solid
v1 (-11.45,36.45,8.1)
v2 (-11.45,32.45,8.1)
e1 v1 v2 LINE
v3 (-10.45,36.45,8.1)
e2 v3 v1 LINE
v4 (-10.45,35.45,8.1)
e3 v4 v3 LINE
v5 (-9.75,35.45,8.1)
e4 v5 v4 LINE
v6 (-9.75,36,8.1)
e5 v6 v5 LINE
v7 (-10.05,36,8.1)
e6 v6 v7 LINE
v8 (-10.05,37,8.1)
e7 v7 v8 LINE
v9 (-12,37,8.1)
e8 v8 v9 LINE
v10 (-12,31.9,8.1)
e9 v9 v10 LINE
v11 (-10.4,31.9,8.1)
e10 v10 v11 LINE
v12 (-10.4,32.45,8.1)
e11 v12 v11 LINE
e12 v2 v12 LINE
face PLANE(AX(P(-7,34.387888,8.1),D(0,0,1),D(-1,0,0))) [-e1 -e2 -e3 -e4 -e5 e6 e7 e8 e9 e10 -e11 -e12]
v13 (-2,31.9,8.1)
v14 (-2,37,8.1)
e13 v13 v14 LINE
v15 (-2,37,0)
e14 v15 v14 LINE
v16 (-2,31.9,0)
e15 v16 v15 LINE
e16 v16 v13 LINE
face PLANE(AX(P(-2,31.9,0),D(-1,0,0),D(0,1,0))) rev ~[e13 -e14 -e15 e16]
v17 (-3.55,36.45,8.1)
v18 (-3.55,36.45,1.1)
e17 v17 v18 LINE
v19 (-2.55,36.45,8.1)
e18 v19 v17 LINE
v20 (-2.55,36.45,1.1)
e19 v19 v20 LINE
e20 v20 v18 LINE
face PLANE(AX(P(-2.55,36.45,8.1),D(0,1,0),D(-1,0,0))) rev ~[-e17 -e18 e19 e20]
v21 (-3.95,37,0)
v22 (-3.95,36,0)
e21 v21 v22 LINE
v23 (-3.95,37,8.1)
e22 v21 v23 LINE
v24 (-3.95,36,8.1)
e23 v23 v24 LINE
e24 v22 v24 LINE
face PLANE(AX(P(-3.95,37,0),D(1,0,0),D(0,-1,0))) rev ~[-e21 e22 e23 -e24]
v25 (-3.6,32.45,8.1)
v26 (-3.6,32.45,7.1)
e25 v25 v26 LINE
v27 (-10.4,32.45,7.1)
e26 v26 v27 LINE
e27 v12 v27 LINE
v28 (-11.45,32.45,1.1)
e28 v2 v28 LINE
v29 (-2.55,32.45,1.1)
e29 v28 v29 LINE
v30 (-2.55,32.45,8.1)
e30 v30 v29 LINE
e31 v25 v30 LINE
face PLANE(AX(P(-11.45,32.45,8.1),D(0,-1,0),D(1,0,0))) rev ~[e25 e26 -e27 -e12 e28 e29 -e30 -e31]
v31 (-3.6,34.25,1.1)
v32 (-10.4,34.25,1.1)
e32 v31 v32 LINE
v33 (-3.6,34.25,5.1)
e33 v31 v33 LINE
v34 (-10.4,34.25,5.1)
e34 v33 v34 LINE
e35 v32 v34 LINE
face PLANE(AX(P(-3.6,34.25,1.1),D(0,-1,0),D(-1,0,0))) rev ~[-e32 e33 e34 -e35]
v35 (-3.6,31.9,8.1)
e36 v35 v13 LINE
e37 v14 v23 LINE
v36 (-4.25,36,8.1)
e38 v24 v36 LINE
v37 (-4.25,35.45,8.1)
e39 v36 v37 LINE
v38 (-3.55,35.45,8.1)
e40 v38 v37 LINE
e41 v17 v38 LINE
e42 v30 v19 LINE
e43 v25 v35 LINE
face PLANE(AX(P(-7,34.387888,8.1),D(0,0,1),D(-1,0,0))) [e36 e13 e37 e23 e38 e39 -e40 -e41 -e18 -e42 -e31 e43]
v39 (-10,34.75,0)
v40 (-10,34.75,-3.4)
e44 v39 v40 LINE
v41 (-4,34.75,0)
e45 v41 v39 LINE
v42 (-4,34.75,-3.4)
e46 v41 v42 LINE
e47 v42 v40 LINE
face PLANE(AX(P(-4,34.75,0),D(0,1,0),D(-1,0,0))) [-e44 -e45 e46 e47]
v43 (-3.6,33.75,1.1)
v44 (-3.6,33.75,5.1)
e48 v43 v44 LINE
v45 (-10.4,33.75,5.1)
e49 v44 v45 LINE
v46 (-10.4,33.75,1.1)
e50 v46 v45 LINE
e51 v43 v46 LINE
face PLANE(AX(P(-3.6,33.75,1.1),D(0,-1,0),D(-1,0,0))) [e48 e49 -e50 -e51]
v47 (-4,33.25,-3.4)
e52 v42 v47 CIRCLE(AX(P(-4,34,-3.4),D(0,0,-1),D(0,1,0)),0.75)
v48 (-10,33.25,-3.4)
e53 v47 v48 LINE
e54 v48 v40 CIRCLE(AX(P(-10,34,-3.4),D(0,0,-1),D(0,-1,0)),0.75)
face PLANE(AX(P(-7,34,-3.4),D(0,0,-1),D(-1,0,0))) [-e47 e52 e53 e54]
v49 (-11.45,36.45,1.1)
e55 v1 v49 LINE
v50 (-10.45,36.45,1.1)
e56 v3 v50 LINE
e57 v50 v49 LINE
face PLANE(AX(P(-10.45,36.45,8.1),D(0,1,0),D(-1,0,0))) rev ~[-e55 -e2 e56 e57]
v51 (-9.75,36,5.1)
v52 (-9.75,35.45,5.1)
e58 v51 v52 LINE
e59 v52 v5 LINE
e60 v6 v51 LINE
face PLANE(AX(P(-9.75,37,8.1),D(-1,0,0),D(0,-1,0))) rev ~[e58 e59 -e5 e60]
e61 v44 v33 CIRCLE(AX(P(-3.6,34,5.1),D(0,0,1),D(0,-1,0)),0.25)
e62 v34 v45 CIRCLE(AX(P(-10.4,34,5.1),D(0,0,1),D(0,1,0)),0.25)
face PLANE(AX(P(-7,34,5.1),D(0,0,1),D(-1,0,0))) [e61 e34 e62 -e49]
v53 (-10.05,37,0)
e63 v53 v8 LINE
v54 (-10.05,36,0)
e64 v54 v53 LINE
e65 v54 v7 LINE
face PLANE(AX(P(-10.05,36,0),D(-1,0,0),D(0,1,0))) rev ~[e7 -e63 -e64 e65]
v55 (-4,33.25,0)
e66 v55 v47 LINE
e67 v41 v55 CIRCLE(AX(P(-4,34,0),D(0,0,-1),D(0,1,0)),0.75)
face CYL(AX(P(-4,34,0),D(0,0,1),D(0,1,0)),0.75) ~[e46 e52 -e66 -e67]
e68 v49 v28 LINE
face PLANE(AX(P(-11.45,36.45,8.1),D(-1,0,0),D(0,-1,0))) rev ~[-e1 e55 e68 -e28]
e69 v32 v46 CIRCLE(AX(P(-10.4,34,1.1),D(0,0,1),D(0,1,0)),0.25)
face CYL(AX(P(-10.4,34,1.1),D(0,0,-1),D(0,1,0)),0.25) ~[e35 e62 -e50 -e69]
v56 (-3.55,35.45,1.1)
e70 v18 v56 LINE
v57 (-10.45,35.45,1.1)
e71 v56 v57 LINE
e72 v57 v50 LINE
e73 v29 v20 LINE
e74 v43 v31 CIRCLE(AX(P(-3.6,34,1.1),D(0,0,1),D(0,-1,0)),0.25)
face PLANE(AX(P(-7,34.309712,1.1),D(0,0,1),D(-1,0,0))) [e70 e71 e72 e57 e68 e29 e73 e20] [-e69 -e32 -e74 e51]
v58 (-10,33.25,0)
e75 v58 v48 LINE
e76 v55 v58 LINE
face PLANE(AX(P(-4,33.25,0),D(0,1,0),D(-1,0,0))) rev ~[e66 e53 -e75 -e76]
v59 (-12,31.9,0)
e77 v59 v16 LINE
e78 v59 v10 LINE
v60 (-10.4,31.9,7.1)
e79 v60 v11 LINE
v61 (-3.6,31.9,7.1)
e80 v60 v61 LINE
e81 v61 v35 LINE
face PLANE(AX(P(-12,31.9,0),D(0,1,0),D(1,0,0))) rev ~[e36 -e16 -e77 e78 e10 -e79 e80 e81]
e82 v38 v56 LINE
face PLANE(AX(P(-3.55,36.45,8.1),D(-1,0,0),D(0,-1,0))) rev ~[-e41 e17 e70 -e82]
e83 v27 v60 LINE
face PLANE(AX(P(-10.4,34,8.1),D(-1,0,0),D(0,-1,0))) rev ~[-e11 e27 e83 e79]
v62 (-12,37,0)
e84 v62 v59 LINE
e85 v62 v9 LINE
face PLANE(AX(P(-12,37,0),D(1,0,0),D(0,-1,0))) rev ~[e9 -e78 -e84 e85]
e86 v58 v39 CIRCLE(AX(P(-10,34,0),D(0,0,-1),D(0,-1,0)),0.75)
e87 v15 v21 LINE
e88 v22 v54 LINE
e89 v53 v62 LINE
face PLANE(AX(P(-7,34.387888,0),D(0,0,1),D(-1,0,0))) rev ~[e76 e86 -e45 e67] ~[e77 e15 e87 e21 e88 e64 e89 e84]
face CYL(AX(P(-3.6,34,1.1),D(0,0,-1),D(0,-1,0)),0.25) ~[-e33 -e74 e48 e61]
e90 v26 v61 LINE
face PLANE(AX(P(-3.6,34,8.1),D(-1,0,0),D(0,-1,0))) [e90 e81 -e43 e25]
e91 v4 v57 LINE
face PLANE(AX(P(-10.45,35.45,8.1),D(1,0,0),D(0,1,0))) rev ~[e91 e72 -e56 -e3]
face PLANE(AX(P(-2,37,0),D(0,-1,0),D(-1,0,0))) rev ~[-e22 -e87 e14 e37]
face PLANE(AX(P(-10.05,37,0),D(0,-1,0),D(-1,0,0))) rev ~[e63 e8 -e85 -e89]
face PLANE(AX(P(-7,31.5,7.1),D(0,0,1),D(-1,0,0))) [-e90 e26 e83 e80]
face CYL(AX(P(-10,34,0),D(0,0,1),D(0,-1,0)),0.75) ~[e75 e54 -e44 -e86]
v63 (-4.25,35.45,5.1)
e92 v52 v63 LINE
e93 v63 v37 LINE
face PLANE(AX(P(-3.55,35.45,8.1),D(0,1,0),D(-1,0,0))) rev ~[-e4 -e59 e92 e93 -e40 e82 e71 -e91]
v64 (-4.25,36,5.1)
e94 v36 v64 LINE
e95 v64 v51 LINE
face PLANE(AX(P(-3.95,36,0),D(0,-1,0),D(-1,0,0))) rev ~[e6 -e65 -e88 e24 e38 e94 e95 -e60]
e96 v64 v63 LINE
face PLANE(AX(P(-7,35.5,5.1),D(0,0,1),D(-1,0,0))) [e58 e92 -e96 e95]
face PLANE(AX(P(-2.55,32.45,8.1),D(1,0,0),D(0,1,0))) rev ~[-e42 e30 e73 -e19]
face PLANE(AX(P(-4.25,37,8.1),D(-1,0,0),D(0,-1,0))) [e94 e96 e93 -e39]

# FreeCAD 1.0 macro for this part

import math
import FreeCAD as App
import Part
import Sketcher
Q = App.Units.Quantity


def add_polygon(sketch, points):
    """Adds a closed chain of lines whose ends are joined by coincident constraints."""
    first, n = sketch.GeometryCount, len(points)
    for a, b in zip(points, points[1:] + points[:1]):
        sketch.addGeometry(Part.LineSegment(App.Vector(*a, 0), App.Vector(*b, 0)), False)
    for i in range(n):
        sketch.addConstraint(Sketcher.Constraint("Coincident", first + i, 2, first + (i + 1) % n, 1))

doc = App.newDocument("Part")
body = doc.addObject("PartDesign::Body", "Body")

# Sketch on XY plane
sketch1 = body.newObject("Sketcher::SketchObject", "Sketch")
sketch1.AttachmentSupport = (doc.getObject("XY_Plane"), [""])
sketch1.MapMode = "FlatFace"
add_polygon(sketch1, [(-5, 0), (-3, 0), (-3, 1), (3, 1), (3, 0), (5, 0), (5, 5.1), (-5, 5.1)])  # lines 0-7
sketch1.addConstraint(Sketcher.Constraint("Horizontal", 0))
sketch1.addConstraint(Sketcher.Constraint("Vertical", 1))
sketch1.addConstraint(Sketcher.Constraint("Horizontal", 2))
sketch1.addConstraint(Sketcher.Constraint("Vertical", 3))
sketch1.addConstraint(Sketcher.Constraint("Horizontal", 4))
sketch1.addConstraint(Sketcher.Constraint("Vertical", 5))
sketch1.addConstraint(Sketcher.Constraint("Horizontal", 6))
sketch1.addConstraint(Sketcher.Constraint("Vertical", 7))
sketch1.addConstraint(Sketcher.Constraint("Symmetric", 0, 2, 3, 2, -1, 1))
sketch1.addConstraint(Sketcher.Constraint("Symmetric", 4, 2, 7, 2, -2))
sketch1.addConstraint(Sketcher.Constraint("DistanceX", 6, 2, 6, 1, Q("10 mm")))
sketch1.addConstraint(Sketcher.Constraint("DistanceY", 1, 1, 1, 2, Q("1 mm")))
sketch1.addConstraint(Sketcher.Constraint("DistanceX", 2, 1, 2, 2, Q("6.1 mm")))
sketch1.addConstraint(Sketcher.Constraint("DistanceY", 5, 1, 5, 2, Q("5.1 mm")))
pad1 = body.newObject("PartDesign::Pad", "Pad")
pad1.Profile = sketch1
pad1.Length = 8.1

# Sketch on XY plane
sketch2 = body.newObject("Sketcher::SketchObject", "Sketch001")
sketch2.AttachmentSupport = (doc.getObject("XY_Plane"), [""])
sketch2.MapMode = "FlatFace"
sketch2.AttachmentOffset = App.Placement(App.Vector(0, 0, 8.1), App.Rotation())
add_polygon(sketch2, [(-4.5, 0.6), (-3.5, 0.6), (-3.5, 1.6), (3.5, 1.6), (3.5, 0.6), (4.5, 0.6), (4.5, 4.5), (-4.5, 4.5)])  # lines 0-7
sketch2.addConstraint(Sketcher.Constraint("Horizontal", 0))
sketch2.addConstraint(Sketcher.Constraint("Vertical", 1))
sketch2.addConstraint(Sketcher.Constraint("Horizontal", 2))
sketch2.addConstraint(Sketcher.Constraint("Vertical", 3))
sketch2.addConstraint(Sketcher.Constraint("Horizontal", 4))
sketch2.addConstraint(Sketcher.Constraint("Vertical", 5))
sketch2.addConstraint(Sketcher.Constraint("Horizontal", 6))
sketch2.addConstraint(Sketcher.Constraint("Vertical", 7))
sketch2.addConstraint(Sketcher.Constraint("Symmetric", 0, 2, 3, 2, -2))
sketch2.addConstraint(Sketcher.Constraint("Equal", 0, 4))
sketch2.addConstraint(Sketcher.Constraint("Equal", 4, 1))
sketch2.addConstraint(Sketcher.Constraint("DistanceX", 0, 1, 0, 2, Q("1 mm")))
sketch2.addConstraint(Sketcher.Constraint("DistanceY", 5, 1, 5, 2, Q("4 mm")))
sketch2.addConstraint(Sketcher.Constraint("DistanceX", 2, 1, 2, 2, Q("6.9 mm")))
sketch2.addConstraint(Sketcher.Constraint("DistanceY", -1, 1, 0, 2, Q("0.55 mm")))
pocket1 = body.newObject("PartDesign::Pocket", "Pocket")
pocket1.Profile = sketch2
pocket1.Length = 7

# Sketch on XY plane
sketch3 = body.newObject("Sketcher::SketchObject", "Sketch002")
sketch3.AttachmentSupport = (doc.getObject("XY_Plane"), [""])
sketch3.MapMode = "FlatFace"
sketch3.AttachmentOffset = App.Placement(App.Vector(0, 0, 8.1), App.Rotation())
add_polygon(sketch3, [(-3, 8), (-3, 3), (3, 3), (3, 8)])  # lines 0-3
sketch3.addConstraint(Sketcher.Constraint("Vertical", 0))
sketch3.addConstraint(Sketcher.Constraint("Horizontal", 1))
sketch3.addConstraint(Sketcher.Constraint("Vertical", 2))
sketch3.addConstraint(Sketcher.Constraint("Horizontal", 3))
sketch3.addConstraint(Sketcher.Constraint("DistanceY", 0, 2, 0, 1, Q("5 mm")))
sketch3.addConstraint(Sketcher.Constraint("DistanceX", 1, 1, 1, 2, Q("6.8 mm")))
sketch3.addConstraint(Sketcher.Constraint("DistanceY", -1, 1, 0, 2, Q("3 mm")))
sketch3.addConstraint(Sketcher.Constraint("DistanceX", 0, 2, -1, 1, Q("3.4 mm")))
pocket2 = body.newObject("PartDesign::Pocket", "Pocket001")
pocket2.Profile = sketch3
pocket2.Length = 1

# Sketch on XY plane
sketch4 = body.newObject("Sketcher::SketchObject", "Sketch003")
sketch4.AttachmentSupport = (doc.getObject("XY_Plane"), [""])
sketch4.MapMode = "FlatFace"
sketch4.AttachmentOffset = App.Placement(App.Vector(0, 0, 8.1), App.Rotation())
add_polygon(sketch4, [(-2.8, 3), (-2.8, 0), (2.8, 0), (2.8, 3)])  # lines 0-3
sketch4.addConstraint(Sketcher.Constraint("Vertical", 0))
sketch4.addConstraint(Sketcher.Constraint("Horizontal", 1))
sketch4.addConstraint(Sketcher.Constraint("Vertical", 2))
sketch4.addConstraint(Sketcher.Constraint("Horizontal", 3))
sketch4.addConstraint(Sketcher.Constraint("Symmetric", 0, 2, 1, 2, -1, 1))
sketch4.addConstraint(Sketcher.Constraint("DistanceY", 0, 2, 0, 1, Q("3 mm")))
sketch4.addConstraint(Sketcher.Constraint("DistanceX", 1, 1, 1, 2, Q("5.5 mm")))
pocket3 = body.newObject("PartDesign::Pocket", "Pocket002")
pocket3.Profile = sketch4
pocket3.Length = 3

# Sketch on XY plane
sketch5 = body.newObject("Sketcher::SketchObject", "Sketch004")
sketch5.AttachmentSupport = (doc.getObject("XY_Plane"), [""])
sketch5.MapMode = "FlatFace"
sketch5.AttachmentOffset = App.Placement(App.Vector(0, 0, 1.1), App.Rotation())
sketch5.addGeometry(Part.ArcOfCircle(Part.Circle(App.Vector(-3.4, 3, 0), App.Vector(0, 0, 1), 0.25), math.radians(90), math.radians(270)), False)
sketch5.addGeometry(Part.LineSegment(App.Vector(-3.4, 2.75, 0), App.Vector(3.4, 2.75, 0)), False)
sketch5.addGeometry(Part.ArcOfCircle(Part.Circle(App.Vector(3.4, 3, 0), App.Vector(0, 0, 1), 0.25), math.radians(-90), math.radians(90)), False)
sketch5.addGeometry(Part.LineSegment(App.Vector(3.4, 3.25, 0), App.Vector(-3.4, 3.25, 0)), False)
sketch5.addConstraint(Sketcher.Constraint("Tangent", 0, 2, 1, 1))
sketch5.addConstraint(Sketcher.Constraint("Tangent", 1, 2, 2, 1))
sketch5.addConstraint(Sketcher.Constraint("Tangent", 2, 2, 3, 1))
sketch5.addConstraint(Sketcher.Constraint("Tangent", 3, 2, 0, 1))
sketch5.addConstraint(Sketcher.Constraint("Horizontal", 1))
sketch5.addConstraint(Sketcher.Constraint("Horizontal", 3))
sketch5.addConstraint(Sketcher.Constraint("Radius", 0, Q("0.25 mm")))
sketch5.addConstraint(Sketcher.Constraint("DistanceX", 1, 1, 1, 2, Q("6.8 mm")))
sketch5.addConstraint(Sketcher.Constraint("DistanceY", -1, 1, 0, 3, Q("3 mm")))
sketch5.addConstraint(Sketcher.Constraint("DistanceX", 0, 3, -1, 1, Q("3.4 mm")))
pad2 = body.newObject("PartDesign::Pad", "Pad001")
pad2.Profile = sketch5
pad2.Length = 4

# Sketch on XY plane
sketch6 = body.newObject("Sketcher::SketchObject", "Sketch005")
sketch6.AttachmentSupport = (doc.getObject("XY_Plane"), [""])
sketch6.MapMode = "FlatFace"
sketch6.addGeometry(Part.ArcOfCircle(Part.Circle(App.Vector(-3, 3, 0), App.Vector(0, 0, 1), 0.8), math.radians(90), math.radians(270)), False)
sketch6.addGeometry(Part.LineSegment(App.Vector(-3, 3.8, 0), App.Vector(3, 3.8, 0)), False)
sketch6.addGeometry(Part.ArcOfCircle(Part.Circle(App.Vector(3, 3, 0), App.Vector(0, 0, 1), 0.8), math.radians(-90), math.radians(90)), False)
sketch6.addGeometry(Part.LineSegment(App.Vector(3, 2.2, 0), App.Vector(-3, 2.2, 0)), False)
sketch6.addConstraint(Sketcher.Constraint("Tangent", 0, 1, 1, 1))
sketch6.addConstraint(Sketcher.Constraint("Tangent", 1, 2, 2, 2))
sketch6.addConstraint(Sketcher.Constraint("Tangent", 2, 1, 3, 1))
sketch6.addConstraint(Sketcher.Constraint("Tangent", 3, 2, 0, 2))
sketch6.addConstraint(Sketcher.Constraint("Horizontal", 1))
sketch6.addConstraint(Sketcher.Constraint("Horizontal", 3))
sketch6.addConstraint(Sketcher.Constraint("DistanceX", 1, 1, 1, 2, Q("6 mm")))
sketch6.addConstraint(Sketcher.Constraint("Radius", 0, Q("0.75 mm")))
sketch6.addConstraint(Sketcher.Constraint("DistanceX", 0, 3, -1, 1, Q("3 mm")))
sketch6.addConstraint(Sketcher.Constraint("DistanceY", -1, 1, 0, 3, Q("3 mm")))
pad3 = body.newObject("PartDesign::Pad", "Pad002")
pad3.Profile = sketch6
pad3.Length = 3.4
pad3.Reversed = True
body2 = doc.addObject("PartDesign::Body", "Body001")
doc.recompute()

body.Placement = App.Placement(App.Vector(-7, 29, 0), App.Rotation(App.Vector(0, 0, 1), 180))
boolean = body2.newObject("PartDesign::Boolean", "Boolean")
boolean.Type = "Fuse"
boolean.addObjects([body])
body3 = doc.addObject("PartDesign::Body", "Body002")
doc.recompute()

body2.Placement = App.Placement(App.Vector(0, 8, 0), App.Rotation(App.Vector(0, 0, 1), 0))
boolean2 = body3.newObject("PartDesign::Boolean", "Boolean001")
boolean2.Type = "Fuse"
boolean2.addObjects([body2])

doc.recompute()
